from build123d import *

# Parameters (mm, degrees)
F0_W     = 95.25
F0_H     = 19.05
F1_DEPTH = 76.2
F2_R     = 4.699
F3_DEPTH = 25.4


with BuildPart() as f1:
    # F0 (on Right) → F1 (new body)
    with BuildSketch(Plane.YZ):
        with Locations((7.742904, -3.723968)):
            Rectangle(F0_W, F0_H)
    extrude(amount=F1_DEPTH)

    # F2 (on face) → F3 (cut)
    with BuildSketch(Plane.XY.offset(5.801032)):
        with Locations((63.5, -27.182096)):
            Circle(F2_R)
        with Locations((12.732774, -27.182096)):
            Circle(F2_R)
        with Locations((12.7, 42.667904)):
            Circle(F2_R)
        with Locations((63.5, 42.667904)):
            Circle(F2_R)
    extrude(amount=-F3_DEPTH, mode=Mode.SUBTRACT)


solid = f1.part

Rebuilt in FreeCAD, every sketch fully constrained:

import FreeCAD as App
import Part
import Sketcher

V = App.Vector
Q = App.Units.Quantity

doc = App.newDocument("Part")
body = doc.addObject("PartDesign::Body", "Body")

# Sketch on YZ plane
sketch1 = doc.addObject("Sketcher::SketchObject", "Sketch")
body.addObject(sketch1)
sketch1.AttachmentSupport = (doc.YZ_Plane, [""])
sketch1.MapMode = "FlatFace"
sketch1.addGeometry(Part.LineSegment(V(-39.882096, 5.801032, 0), V(-39.882096, -13.248968, 0)), False)
sketch1.addGeometry(Part.LineSegment(V(-39.882096, -13.248968, 0), V(55.367904, -13.248968, 0)), False)
sketch1.addGeometry(Part.LineSegment(V(55.367904, -13.248968, 0), V(55.367904, 5.801032, 0)), False)
sketch1.addGeometry(Part.LineSegment(V(55.367904, 5.801032, 0), V(-39.882096, 5.801032, 0)), False)
sketch1.addConstraint(Sketcher.Constraint("Coincident", 0, 2, 1, 1))
sketch1.addConstraint(Sketcher.Constraint("Coincident", 1, 2, 2, 1))
sketch1.addConstraint(Sketcher.Constraint("Coincident", 2, 2, 3, 1))
sketch1.addConstraint(Sketcher.Constraint("Coincident", 3, 2, 0, 1))
sketch1.addConstraint(Sketcher.Constraint("Vertical", 0))
sketch1.addConstraint(Sketcher.Constraint("Horizontal", 1))
sketch1.addConstraint(Sketcher.Constraint("Vertical", 2))
sketch1.addConstraint(Sketcher.Constraint("Horizontal", 3))
sketch1.addConstraint(Sketcher.Constraint("DistanceX", 1, 1, 1, 2, Q("3.75 in")))
sketch1.addConstraint(Sketcher.Constraint("DistanceY", 0, 2, 0, 1, Q("0.75 in")))
sketch1.addConstraint(Sketcher.Constraint("DistanceX", 0, 2, -1, 1, Q("39.882096 mm")))
sketch1.addConstraint(Sketcher.Constraint("DistanceY", 0, 2, -1, 1, Q("13.248968 mm")))
pad1 = doc.addObject("PartDesign::Pad", "Pad")
body.addObject(pad1)
pad1.Profile = sketch1
pad1.Length = Q("3 in")

# Sketch on XY plane
sketch2 = doc.addObject("Sketcher::SketchObject", "Sketch001")
body.addObject(sketch2)
sketch2.AttachmentSupport = (doc.XY_Plane, [""])
sketch2.MapMode = "FlatFace"
sketch2.AttachmentOffset = App.Placement(V(0, 0, 5.801032), App.Rotation())
sketch2.addGeometry(Part.Circle(V(63.5, -27.182096, 0), V(0, 0, 1), 4.699), False)
sketch2.addGeometry(Part.Circle(V(12.732774, -27.182096, 0), V(0, 0, 1), 4.699), False)
sketch2.addGeometry(Part.Circle(V(12.7, 42.667904, 0), V(0, 0, 1), 4.699), False)
sketch2.addGeometry(Part.Circle(V(63.5, 42.667904, 0), V(0, 0, 1), 4.699), False)
sketch2.addConstraint(Sketcher.Constraint("Equal", 0, 1))
sketch2.addConstraint(Sketcher.Constraint("Equal", 1, 2))
sketch2.addConstraint(Sketcher.Constraint("Equal", 2, 3))
sketch2.addConstraint(Sketcher.Constraint("Horizontal", 0, 3, 1, 3))
sketch2.addConstraint(Sketcher.Constraint("Horizontal", 2, 3, 3, 3))
sketch2.addConstraint(Sketcher.Constraint("Vertical", 0, 3, 3, 3))
sketch2.addConstraint(Sketcher.Constraint("Diameter", 0, Q("0.37 in")))
sketch2.addConstraint(Sketcher.Constraint("DistanceX", 2, 3, 0, 3, Q("2 in")))
sketch2.addConstraint(Sketcher.Constraint("DistanceX", -1, 1, 0, 3, Q("2.5 in")))
sketch2.addConstraint(Sketcher.Constraint("DistanceY", 1, 3, 2, 3, Q("2.75 in")))
sketch2.addConstraint(Sketcher.Constraint("DistanceY", 0, 3, -1, 1, Q("27.182096 mm")))
sketch2.addConstraint(Sketcher.Constraint("DistanceX", -1, 1, 1, 3, Q("12.732774 mm")))
pocket1 = doc.addObject("PartDesign::Pocket", "Pocket")
body.addObject(pocket1)
pocket1.Profile = sketch2
pocket1.Length = Q("1 in")

doc.recompute()
